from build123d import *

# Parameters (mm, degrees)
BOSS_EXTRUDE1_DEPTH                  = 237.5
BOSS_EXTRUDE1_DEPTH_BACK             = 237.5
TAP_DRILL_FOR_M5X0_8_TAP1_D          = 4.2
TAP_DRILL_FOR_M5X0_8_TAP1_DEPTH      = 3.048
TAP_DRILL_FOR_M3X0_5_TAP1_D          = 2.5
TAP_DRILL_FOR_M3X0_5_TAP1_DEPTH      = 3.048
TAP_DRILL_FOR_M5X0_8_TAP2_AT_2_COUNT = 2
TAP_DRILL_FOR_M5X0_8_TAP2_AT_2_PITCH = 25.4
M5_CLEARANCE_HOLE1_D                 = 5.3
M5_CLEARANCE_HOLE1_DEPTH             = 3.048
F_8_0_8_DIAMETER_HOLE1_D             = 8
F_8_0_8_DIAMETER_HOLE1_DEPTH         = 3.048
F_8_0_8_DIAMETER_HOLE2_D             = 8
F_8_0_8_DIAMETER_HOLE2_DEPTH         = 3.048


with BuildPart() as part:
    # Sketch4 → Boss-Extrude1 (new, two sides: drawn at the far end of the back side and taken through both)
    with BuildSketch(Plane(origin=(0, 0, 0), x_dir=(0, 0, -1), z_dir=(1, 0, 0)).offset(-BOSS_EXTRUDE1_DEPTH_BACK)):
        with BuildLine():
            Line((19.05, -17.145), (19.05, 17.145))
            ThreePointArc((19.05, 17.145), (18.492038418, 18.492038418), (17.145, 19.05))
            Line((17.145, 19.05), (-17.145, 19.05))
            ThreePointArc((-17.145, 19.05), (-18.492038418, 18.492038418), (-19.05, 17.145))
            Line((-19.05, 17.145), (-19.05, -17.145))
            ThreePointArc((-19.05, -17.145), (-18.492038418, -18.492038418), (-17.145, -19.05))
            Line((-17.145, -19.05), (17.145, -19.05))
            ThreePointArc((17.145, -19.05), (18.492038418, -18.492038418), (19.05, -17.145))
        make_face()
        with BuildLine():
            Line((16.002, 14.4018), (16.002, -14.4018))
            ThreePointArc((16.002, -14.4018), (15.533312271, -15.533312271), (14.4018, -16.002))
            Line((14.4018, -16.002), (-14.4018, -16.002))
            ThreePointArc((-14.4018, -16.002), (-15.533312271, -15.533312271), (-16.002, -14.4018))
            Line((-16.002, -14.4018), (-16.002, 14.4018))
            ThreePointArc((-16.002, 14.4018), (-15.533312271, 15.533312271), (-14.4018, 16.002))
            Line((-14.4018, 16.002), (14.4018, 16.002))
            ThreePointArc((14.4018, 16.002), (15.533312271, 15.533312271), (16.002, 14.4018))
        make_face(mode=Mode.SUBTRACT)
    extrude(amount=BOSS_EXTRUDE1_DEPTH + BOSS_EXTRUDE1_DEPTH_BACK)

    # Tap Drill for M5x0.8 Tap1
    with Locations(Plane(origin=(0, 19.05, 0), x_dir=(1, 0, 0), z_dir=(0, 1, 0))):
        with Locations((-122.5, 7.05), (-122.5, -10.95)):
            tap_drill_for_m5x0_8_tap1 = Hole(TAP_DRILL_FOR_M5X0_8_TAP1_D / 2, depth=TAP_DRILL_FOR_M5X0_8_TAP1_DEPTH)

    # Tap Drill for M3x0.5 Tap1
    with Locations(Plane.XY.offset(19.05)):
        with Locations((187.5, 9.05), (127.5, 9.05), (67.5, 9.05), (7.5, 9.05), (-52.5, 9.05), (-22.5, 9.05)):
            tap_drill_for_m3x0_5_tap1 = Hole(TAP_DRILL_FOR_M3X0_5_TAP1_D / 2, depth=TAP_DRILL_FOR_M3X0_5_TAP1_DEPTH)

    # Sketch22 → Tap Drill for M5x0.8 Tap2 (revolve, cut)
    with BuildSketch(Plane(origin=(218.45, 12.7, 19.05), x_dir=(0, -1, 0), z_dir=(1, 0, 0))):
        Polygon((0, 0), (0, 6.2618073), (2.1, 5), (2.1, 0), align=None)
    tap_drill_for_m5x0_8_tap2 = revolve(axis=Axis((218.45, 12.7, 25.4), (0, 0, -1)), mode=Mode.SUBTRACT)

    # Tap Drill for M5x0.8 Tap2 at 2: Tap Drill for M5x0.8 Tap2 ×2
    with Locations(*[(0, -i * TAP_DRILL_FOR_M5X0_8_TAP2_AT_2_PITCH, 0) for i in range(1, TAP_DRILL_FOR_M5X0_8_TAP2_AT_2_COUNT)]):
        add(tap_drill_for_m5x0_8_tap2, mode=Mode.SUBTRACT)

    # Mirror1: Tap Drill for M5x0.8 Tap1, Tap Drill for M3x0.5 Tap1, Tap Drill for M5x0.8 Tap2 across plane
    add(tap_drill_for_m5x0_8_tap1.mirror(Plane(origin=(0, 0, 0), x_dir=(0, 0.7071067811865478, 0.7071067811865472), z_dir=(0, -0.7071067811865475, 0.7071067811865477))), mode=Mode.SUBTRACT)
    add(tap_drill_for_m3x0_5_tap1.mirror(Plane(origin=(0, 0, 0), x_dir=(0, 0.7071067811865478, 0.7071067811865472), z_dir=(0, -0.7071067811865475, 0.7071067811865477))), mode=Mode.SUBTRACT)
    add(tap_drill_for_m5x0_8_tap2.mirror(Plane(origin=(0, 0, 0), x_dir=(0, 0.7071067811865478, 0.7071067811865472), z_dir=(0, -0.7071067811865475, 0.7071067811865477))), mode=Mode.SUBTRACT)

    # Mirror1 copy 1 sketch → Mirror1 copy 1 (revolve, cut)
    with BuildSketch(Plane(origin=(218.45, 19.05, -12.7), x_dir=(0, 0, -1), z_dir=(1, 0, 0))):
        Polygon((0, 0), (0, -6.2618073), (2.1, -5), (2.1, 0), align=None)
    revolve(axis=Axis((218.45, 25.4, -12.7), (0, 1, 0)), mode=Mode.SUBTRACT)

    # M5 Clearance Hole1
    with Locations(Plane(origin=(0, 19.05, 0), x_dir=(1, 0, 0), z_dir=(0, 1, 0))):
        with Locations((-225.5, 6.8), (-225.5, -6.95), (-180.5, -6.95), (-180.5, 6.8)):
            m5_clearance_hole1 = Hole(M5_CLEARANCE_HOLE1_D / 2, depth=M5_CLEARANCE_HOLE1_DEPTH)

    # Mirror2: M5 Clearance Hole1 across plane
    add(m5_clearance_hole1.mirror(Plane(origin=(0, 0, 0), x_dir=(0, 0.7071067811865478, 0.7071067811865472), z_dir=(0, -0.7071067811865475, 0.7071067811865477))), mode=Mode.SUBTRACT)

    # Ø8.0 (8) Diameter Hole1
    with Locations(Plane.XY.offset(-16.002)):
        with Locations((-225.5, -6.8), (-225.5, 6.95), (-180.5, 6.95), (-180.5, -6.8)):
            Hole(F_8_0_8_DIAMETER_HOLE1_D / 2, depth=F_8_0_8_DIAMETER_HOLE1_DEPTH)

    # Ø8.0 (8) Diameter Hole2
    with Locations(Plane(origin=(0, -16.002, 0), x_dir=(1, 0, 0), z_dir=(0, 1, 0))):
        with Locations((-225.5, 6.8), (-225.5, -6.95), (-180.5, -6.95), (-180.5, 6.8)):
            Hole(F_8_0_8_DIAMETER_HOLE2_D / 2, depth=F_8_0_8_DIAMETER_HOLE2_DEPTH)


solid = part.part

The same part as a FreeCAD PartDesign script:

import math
import FreeCAD as App
import Part
import Sketcher

V = App.Vector
Q = App.Units.Quantity

doc = App.newDocument("Part")
body = doc.addObject("PartDesign::Body", "Body")

# Sketch on YZ plane
sketch1 = body.newObject("Sketcher::SketchObject", "Sketch")
sketch1.AttachmentSupport = (doc.getObject("YZ_Plane"), [""])
sketch1.MapMode = "FlatFace"
sketch1.addGeometry([
    Part.LineSegment(V(-17.1, -19.1, 0), V(17.1, -19.1, 0)),  # 0
    Part.ArcOfCircle(Part.Circle(V(17.1, -17.1, 0), V(0, 0, 1), 1.9), math.radians(-90), math.radians(0)),  # 1
    Part.LineSegment(V(19.1, -17.1, 0), V(19.1, 17.1, 0)),  # 2
    Part.ArcOfCircle(Part.Circle(V(17.1, 17.1, 0), V(0, 0, 1), 1.9), math.radians(0), math.radians(90)),  # 3
    Part.LineSegment(V(17.1, 19.1, 0), V(-17.1, 19.1, 0)),  # 4
    Part.ArcOfCircle(Part.Circle(V(-17.1, 17.1, 0), V(0, 0, 1), 1.9), math.radians(90), math.radians(180)),  # 5
    Part.LineSegment(V(-19.1, 17.1, 0), V(-19.1, -17.1, 0)),  # 6
    Part.ArcOfCircle(Part.Circle(V(-17.1, -17.1, 0), V(0, 0, 1), 1.9), math.radians(-180), math.radians(-90)),  # 7
    Part.ArcOfCircle(Part.Circle(V(14.4, -14.4, 0), V(0, 0, 1), 1.6), math.radians(-90), math.radians(0)),  # 8
    Part.LineSegment(V(14.4, -16, 0), V(-14.4, -16, 0)),  # 9
    Part.ArcOfCircle(Part.Circle(V(-14.4, -14.4, 0), V(0, 0, 1), 1.6), math.radians(-180), math.radians(-90)),  # 10
    Part.LineSegment(V(-16, -14.4, 0), V(-16, 14.4, 0)),  # 11
    Part.ArcOfCircle(Part.Circle(V(-14.4, 14.4, 0), V(0, 0, 1), 1.6), math.radians(90), math.radians(180)),  # 12
    Part.LineSegment(V(-14.4, 16, 0), V(14.4, 16, 0)),  # 13
    Part.ArcOfCircle(Part.Circle(V(14.4, 14.4, 0), V(0, 0, 1), 1.6), math.radians(0), math.radians(90)),  # 14
    Part.LineSegment(V(16, 14.4, 0), V(16, -14.4, 0)),  # 15
], False)
sketch1.addConstraint([
    Sketcher.Constraint("Tangent", 0, 2, 1, 1),
    Sketcher.Constraint("Tangent", 1, 2, 2, 1),
    Sketcher.Constraint("Tangent", 2, 2, 3, 1),
    Sketcher.Constraint("Tangent", 3, 2, 4, 1),
    Sketcher.Constraint("Tangent", 4, 2, 5, 1),
    Sketcher.Constraint("Tangent", 5, 2, 6, 1),
    Sketcher.Constraint("Tangent", 6, 2, 7, 1),
    Sketcher.Constraint("Tangent", 7, 2, 0, 1),
    Sketcher.Constraint("Tangent", 8, 1, 9, 1),
    Sketcher.Constraint("Tangent", 9, 2, 10, 2),
    Sketcher.Constraint("Tangent", 10, 1, 11, 1),
    Sketcher.Constraint("Tangent", 11, 2, 12, 2),
    Sketcher.Constraint("Tangent", 12, 1, 13, 1),
    Sketcher.Constraint("Tangent", 13, 2, 14, 2),
    Sketcher.Constraint("Tangent", 14, 1, 15, 1),
    Sketcher.Constraint("Tangent", 15, 2, 8, 2),
    Sketcher.Constraint("Horizontal", 0),
    Sketcher.Constraint("Vertical", 2),
    Sketcher.Constraint("Horizontal", 4),
    Sketcher.Constraint("Vertical", 6),
    Sketcher.Constraint("Horizontal", 9),
    Sketcher.Constraint("Vertical", 11),
    Sketcher.Constraint("Horizontal", 13),
    Sketcher.Constraint("Vertical", 15),
    Sketcher.Constraint("Equal", 1, 3),
    Sketcher.Constraint("Equal", 3, 5),
    Sketcher.Constraint("Equal", 5, 7),
    Sketcher.Constraint("Equal", 8, 10),
    Sketcher.Constraint("Equal", 10, 12),
    Sketcher.Constraint("Equal", 12, 14),
    Sketcher.Constraint("Symmetric", 1, 3, 5, 3, -1, 1),
    Sketcher.Constraint("Symmetric", 8, 3, 12, 3, -1, 1),
    Sketcher.Constraint("Equal", 4, 2),
    Sketcher.Constraint("Equal", 13, 11),
    Sketcher.Constraint("Radius", 1, Q("1.905 mm")),
    Sketcher.Constraint("DistanceX", 0, 1, 0, 2, Q("34.29 mm")),
    Sketcher.Constraint("Radius", 8, Q("1.6002 mm")),
    Sketcher.Constraint("DistanceX", 9, 2, 9, 1, Q("28.8036 mm")),
])
pad1 = body.newObject("PartDesign::Pad", "Pad")
pad1.Profile = sketch1
pad1.Type = "TwoLengths"
pad1.Length = 237.5
pad1.Length2 = 237.5

# Sketch on XZ plane
sketch2 = body.newObject("Sketcher::SketchObject", "Sketch001")
sketch2.AttachmentSupport = (doc.getObject("XZ_Plane"), [""])
sketch2.MapMode = "FlatFace"
sketch2.AttachmentOffset = App.Placement(V(0, 0, -19.05), App.Rotation())
sketch2.addGeometry([
    Part.Circle(V(-122.5, -7, 0), V(0, 0, 1), 2.1),
    Part.Circle(V(-122.5, 10.9, 0), V(0, 0, 1), 2.1),
], False)
sketch2.addConstraint([
    Sketcher.Constraint("Equal", 0, 1),
    Sketcher.Constraint("Vertical", 0, 3, 1, 3),
    Sketcher.Constraint("Diameter", 0, Q("4.2 mm")),
    Sketcher.Constraint("DistanceY", 0, 3, 1, 3, Q("18 mm")),
    Sketcher.Constraint("DistanceX", 0, 3, -1, 1, Q("122.5 mm")),
    Sketcher.Constraint("DistanceY", 0, 3, -1, 1, Q("7.05 mm")),
])
doc.recompute()
hole = body.newObject("PartDesign::Hole", "Hole")
hole.Profile = sketch2
hole.ThreadType = "None"
hole.Diameter = 4.2
hole.DepthType = "Dimension"
hole.Depth = 3.048
hole.DrillPoint = "Flat"
hole.Reversed = True

# Sketch on XY plane
sketch3 = body.newObject("Sketcher::SketchObject", "Sketch002")
sketch3.AttachmentSupport = (doc.getObject("XY_Plane"), [""])
sketch3.MapMode = "FlatFace"
sketch3.AttachmentOffset = App.Placement(V(0, 0, 19.05), App.Rotation())
sketch3.addGeometry([
    Part.Circle(V(187.5, 9.1, 0), V(0, 0, 1), 1.2),  # 0
    Part.Circle(V(127.5, 9.1, 0), V(0, 0, 1), 1.2),  # 1
    Part.Circle(V(67.5, 9.1, 0), V(0, 0, 1), 1.2),  # 2
    Part.Circle(V(7.5, 9.1, 0), V(0, 0, 1), 1.2),  # 3
    Part.Circle(V(-52.5, 9.1, 0), V(0, 0, 1), 1.2),  # 4
    Part.Circle(V(-22.5, 9.1, 0), V(0, 0, 1), 1.2),  # 5
], False)
sketch3.addConstraint([
    Sketcher.Constraint("Equal", 0, 1),
    Sketcher.Constraint("Equal", 1, 2),
    Sketcher.Constraint("Equal", 2, 3),
    Sketcher.Constraint("Equal", 3, 4),
    Sketcher.Constraint("Equal", 4, 5),
    Sketcher.Constraint("Horizontal", 0, 3, 1, 3),
    Sketcher.Constraint("Horizontal", 1, 3, 2, 3),
    Sketcher.Constraint("Horizontal", 2, 3, 3, 3),
    Sketcher.Constraint("Horizontal", 3, 3, 4, 3),
    Sketcher.Constraint("Horizontal", 4, 3, 5, 3),
    Sketcher.Constraint("Diameter", 0, Q("2.5 mm")),
    Sketcher.Constraint("DistanceX", 1, 3, 0, 3, Q("60 mm")),
    Sketcher.Constraint("DistanceX", 2, 3, 1, 3, Q("60 mm")),
    Sketcher.Constraint("DistanceX", 3, 3, 2, 3, Q("60 mm")),
    Sketcher.Constraint("DistanceX", 4, 3, 3, 3, Q("60 mm")),
    Sketcher.Constraint("DistanceX", 5, 3, 3, 3, Q("30 mm")),
    Sketcher.Constraint("DistanceX", -1, 1, 0, 3, Q("187.5 mm")),
    Sketcher.Constraint("DistanceY", -1, 1, 0, 3, Q("9.05 mm")),
])
doc.recompute()
hole2 = body.newObject("PartDesign::Hole", "Hole001")
hole2.Profile = sketch3
hole2.ThreadType = "None"
hole2.Diameter = 2.5
hole2.DepthType = "Dimension"
hole2.Depth = 3.048
hole2.DrillPoint = "Flat"

# Sketch on YZ plane
sketch4 = body.newObject("Sketcher::SketchObject", "Sketch003")
sketch4.AttachmentSupport = (doc.getObject("YZ_Plane"), [""])
sketch4.MapMode = "FlatFace"
sketch4.AttachmentOffset = App.Placement(V(0, 0, 218.45), App.Rotation())
sketch4.addGeometry([
    Part.LineSegment(V(12.7, 12.8, 0), V(12.7, 19.1, 0)),
    Part.LineSegment(V(12.7, 19.1, 0), V(10.6, 19.1, 0)),
    Part.LineSegment(V(10.6, 19.1, 0), V(10.6, 14.1, 0)),
    Part.LineSegment(V(10.6, 14.1, 0), V(12.7, 12.8, 0)),
], False)
sketch4.addGeometry(Part.LineSegment(V(12.7, 19.1, 0), V(12.7, 12.8, 0)), True)  # axis
sketch4.addConstraint([
    Sketcher.Constraint("Coincident", 0, 2, 1, 1),
    Sketcher.Constraint("Coincident", 1, 2, 2, 1),
    Sketcher.Constraint("Coincident", 2, 2, 3, 1),
    Sketcher.Constraint("Coincident", 3, 2, 0, 1),
    Sketcher.Constraint("Vertical", 0),
    Sketcher.Constraint("Horizontal", 1),
    Sketcher.Constraint("Vertical", 2),
    Sketcher.Constraint("Vertical", 4),
    Sketcher.Constraint("Coincident", 4, 1, 0, 2),
    Sketcher.Constraint("Equal", 0, 4),
    Sketcher.Constraint("DistanceY", 2, 2, 2, 1, Q("5 mm")),
    Sketcher.Constraint("Angle", 3, Q("-31 deg")),
    Sketcher.Constraint("DistanceX", 1, 2, 1, 1, Q("2.1 mm")),
    Sketcher.Constraint("DistanceX", -1, 1, 0, 2, Q("12.7 mm")),
    Sketcher.Constraint("DistanceY", -1, 1, 0, 2, Q("19.05 mm")),
])
groove = body.newObject("PartDesign::Groove", "Groove")
groove.Profile = sketch4
groove.ReferenceAxis = (sketch4, ["Axis0"])
groove.Angle = 360
doc.recompute()

linearpattern = body.newObject("PartDesign::LinearPattern", "LinearPattern")
linearpattern.Originals = [groove]
linearpattern.Direction = (doc.getObject("Y_Axis"), [""])
linearpattern.Mode = "offset"
linearpattern.Offset = 25.4
linearpattern.Occurrences = 2
linearpattern.Reversed = True
body.Tip = linearpattern
doc.recompute()

datumplane = body.newObject("PartDesign::Plane", "DatumPlane")
datumplane.Placement = App.Placement(V(0, 0, 0), App.Rotation(V(0, 0.707106781, 0.707106781), V(-1, 0, 0), V(0, -0.707106781, 0.707106781), "ZXY"))
mirrored = body.newObject("PartDesign::Mirrored", "Mirrored")
mirrored.Originals = [hole, hole2, groove]
mirrored.MirrorPlane = (datumplane, [""])
body.Tip = mirrored

# Sketch on YZ plane
sketch5 = body.newObject("Sketcher::SketchObject", "Sketch004")
sketch5.AttachmentSupport = (doc.getObject("YZ_Plane"), [""])
sketch5.MapMode = "FlatFace"
sketch5.AttachmentOffset = App.Placement(V(0, 0, 218.45), App.Rotation())
sketch5.addGeometry([
    Part.LineSegment(V(19.1, -12.7, 0), V(12.8, -12.7, 0)),
    Part.LineSegment(V(12.8, -12.7, 0), V(14.1, -14.8, 0)),
    Part.LineSegment(V(14.1, -14.8, 0), V(19.1, -14.8, 0)),
    Part.LineSegment(V(19.1, -14.8, 0), V(19.1, -12.7, 0)),
], False)
sketch5.addGeometry(Part.LineSegment(V(12.8, -12.7, 0), V(19.1, -12.7, 0)), True)  # axis
sketch5.addConstraint([
    Sketcher.Constraint("Coincident", 0, 2, 1, 1),
    Sketcher.Constraint("Coincident", 1, 2, 2, 1),
    Sketcher.Constraint("Coincident", 2, 2, 3, 1),
    Sketcher.Constraint("Coincident", 3, 2, 0, 1),
    Sketcher.Constraint("Horizontal", 0),
    Sketcher.Constraint("Horizontal", 2),
    Sketcher.Constraint("Vertical", 3),
    Sketcher.Constraint("Horizontal", 4),
    Sketcher.Constraint("Coincident", 4, 1, 0, 2),
    Sketcher.Constraint("Vertical", 2, 2, 4, 2),
    Sketcher.Constraint("DistanceX", 2, 1, 2, 2, Q("5 mm")),
    Sketcher.Constraint("Angle", 1, Q("-59 deg")),
    Sketcher.Constraint("DistanceY", 3, 1, 3, 2, Q("2.1 mm")),
    Sketcher.Constraint("DistanceY", 0, 2, -1, 1, Q("12.7 mm")),
    Sketcher.Constraint("DistanceX", -1, 1, 1, 2, Q("14.05 mm")),
])
groove2 = body.newObject("PartDesign::Groove", "Groove001")
groove2.Profile = sketch5
groove2.ReferenceAxis = (sketch5, ["Axis0"])
groove2.Angle = 360

# Sketch on XZ plane
sketch6 = body.newObject("Sketcher::SketchObject", "Sketch005")
sketch6.AttachmentSupport = (doc.getObject("XZ_Plane"), [""])
sketch6.MapMode = "FlatFace"
sketch6.AttachmentOffset = App.Placement(V(0, 0, -19.05), App.Rotation())
sketch6.addGeometry([
    Part.Circle(V(-225.5, -6.8, 0), V(0, 0, 1), 2.6),
    Part.Circle(V(-225.5, 7, 0), V(0, 0, 1), 2.6),
    Part.Circle(V(-180.5, 7, 0), V(0, 0, 1), 2.6),
    Part.Circle(V(-180.5, -6.8, 0), V(0, 0, 1), 2.6),
], False)
sketch6.addConstraint([
    Sketcher.Constraint("Equal", 0, 1),
    Sketcher.Constraint("Equal", 1, 2),
    Sketcher.Constraint("Equal", 2, 3),
    Sketcher.Constraint("Horizontal", 1, 3, 2, 3),
    Sketcher.Constraint("Horizontal", 0, 3, 3, 3),
    Sketcher.Constraint("Vertical", 0, 3, 1, 3),
    Sketcher.Constraint("Vertical", 2, 3, 3, 3),
    Sketcher.Constraint("Diameter", 0, Q("5.3 mm")),
    Sketcher.Constraint("DistanceX", 1, 3, 2, 3, Q("45 mm")),
    Sketcher.Constraint("DistanceX", 0, 3, -1, 1, Q("225.5 mm")),
    Sketcher.Constraint("DistanceY", 0, 3, -1, 1, Q("6.8 mm")),
    Sketcher.Constraint("DistanceY", -1, 1, 1, 3, Q("6.95 mm")),
])
doc.recompute()
hole3 = body.newObject("PartDesign::Hole", "Hole002")
hole3.Profile = sketch6
hole3.ThreadType = "None"
hole3.Diameter = 5.3
hole3.DepthType = "Dimension"
hole3.Depth = 3.048
hole3.DrillPoint = "Flat"
hole3.Reversed = True
doc.recompute()

datumplane2 = body.newObject("PartDesign::Plane", "DatumPlane001")
datumplane2.Placement = App.Placement(V(0, 0, 0), App.Rotation(V(0, 0.707106781, 0.707106781), V(-1, 0, 0), V(0, -0.707106781, 0.707106781), "ZXY"))
mirrored2 = body.newObject("PartDesign::Mirrored", "Mirrored001")
mirrored2.Originals = [hole3]
mirrored2.MirrorPlane = (datumplane2, [""])
body.Tip = mirrored2

# Sketch on XY plane
sketch7 = body.newObject("Sketcher::SketchObject", "Sketch006")
sketch7.AttachmentSupport = (doc.getObject("XY_Plane"), [""])
sketch7.MapMode = "FlatFace"
sketch7.AttachmentOffset = App.Placement(V(0, 0, -16.002), App.Rotation())
sketch7.addGeometry([
    Part.Circle(V(-225.5, -6.8, 0), V(0, 0, 1), 4),
    Part.Circle(V(-225.5, 7, 0), V(0, 0, 1), 4),
    Part.Circle(V(-180.5, 7, 0), V(0, 0, 1), 4),
    Part.Circle(V(-180.5, -6.8, 0), V(0, 0, 1), 4),
], False)
sketch7.addConstraint([
    Sketcher.Constraint("Equal", 0, 1),
    Sketcher.Constraint("Equal", 1, 2),
    Sketcher.Constraint("Equal", 2, 3),
    Sketcher.Constraint("Horizontal", 1, 3, 2, 3),
    Sketcher.Constraint("Horizontal", 0, 3, 3, 3),
    Sketcher.Constraint("Vertical", 0, 3, 1, 3),
    Sketcher.Constraint("Vertical", 2, 3, 3, 3),
    Sketcher.Constraint("Diameter", 0, Q("8 mm")),
    Sketcher.Constraint("DistanceX", 1, 3, 2, 3, Q("45 mm")),
    Sketcher.Constraint("DistanceX", 0, 3, -1, 1, Q("225.5 mm")),
    Sketcher.Constraint("DistanceY", 0, 3, -1, 1, Q("6.8 mm")),
    Sketcher.Constraint("DistanceY", -1, 1, 1, 3, Q("6.95 mm")),
])
doc.recompute()
hole4 = body.newObject("PartDesign::Hole", "Hole003")
hole4.Profile = sketch7
hole4.ThreadType = "None"
hole4.Diameter = 8
hole4.DepthType = "Dimension"
hole4.Depth = 3.048
hole4.DrillPoint = "Flat"

# Sketch on XZ plane
sketch8 = body.newObject("Sketcher::SketchObject", "Sketch007")
sketch8.AttachmentSupport = (doc.getObject("XZ_Plane"), [""])
sketch8.MapMode = "FlatFace"
sketch8.AttachmentOffset = App.Placement(V(0, 0, 16.002), App.Rotation())
sketch8.addGeometry([
    Part.Circle(V(-225.5, -6.8, 0), V(0, 0, 1), 4),
    Part.Circle(V(-225.5, 7, 0), V(0, 0, 1), 4),
    Part.Circle(V(-180.5, 7, 0), V(0, 0, 1), 4),
    Part.Circle(V(-180.5, -6.8, 0), V(0, 0, 1), 4),
], False)
sketch8.addConstraint([
    Sketcher.Constraint("Equal", 0, 1),
    Sketcher.Constraint("Equal", 1, 2),
    Sketcher.Constraint("Equal", 2, 3),
    Sketcher.Constraint("Horizontal", 1, 3, 2, 3),
    Sketcher.Constraint("Horizontal", 0, 3, 3, 3),
    Sketcher.Constraint("Vertical", 0, 3, 1, 3),
    Sketcher.Constraint("Vertical", 2, 3, 3, 3),
    Sketcher.Constraint("Diameter", 0, Q("8 mm")),
    Sketcher.Constraint("DistanceX", 1, 3, 2, 3, Q("45 mm")),
    Sketcher.Constraint("DistanceX", 0, 3, -1, 1, Q("225.5 mm")),
    Sketcher.Constraint("DistanceY", 0, 3, -1, 1, Q("6.8 mm")),
    Sketcher.Constraint("DistanceY", -1, 1, 1, 3, Q("6.95 mm")),
])
doc.recompute()
hole5 = body.newObject("PartDesign::Hole", "Hole004")
hole5.Profile = sketch8
hole5.ThreadType = "None"
hole5.Diameter = 8
hole5.DepthType = "Dimension"
hole5.Depth = 3.048
hole5.DrillPoint = "Flat"
hole5.Reversed = True

doc.recompute()
